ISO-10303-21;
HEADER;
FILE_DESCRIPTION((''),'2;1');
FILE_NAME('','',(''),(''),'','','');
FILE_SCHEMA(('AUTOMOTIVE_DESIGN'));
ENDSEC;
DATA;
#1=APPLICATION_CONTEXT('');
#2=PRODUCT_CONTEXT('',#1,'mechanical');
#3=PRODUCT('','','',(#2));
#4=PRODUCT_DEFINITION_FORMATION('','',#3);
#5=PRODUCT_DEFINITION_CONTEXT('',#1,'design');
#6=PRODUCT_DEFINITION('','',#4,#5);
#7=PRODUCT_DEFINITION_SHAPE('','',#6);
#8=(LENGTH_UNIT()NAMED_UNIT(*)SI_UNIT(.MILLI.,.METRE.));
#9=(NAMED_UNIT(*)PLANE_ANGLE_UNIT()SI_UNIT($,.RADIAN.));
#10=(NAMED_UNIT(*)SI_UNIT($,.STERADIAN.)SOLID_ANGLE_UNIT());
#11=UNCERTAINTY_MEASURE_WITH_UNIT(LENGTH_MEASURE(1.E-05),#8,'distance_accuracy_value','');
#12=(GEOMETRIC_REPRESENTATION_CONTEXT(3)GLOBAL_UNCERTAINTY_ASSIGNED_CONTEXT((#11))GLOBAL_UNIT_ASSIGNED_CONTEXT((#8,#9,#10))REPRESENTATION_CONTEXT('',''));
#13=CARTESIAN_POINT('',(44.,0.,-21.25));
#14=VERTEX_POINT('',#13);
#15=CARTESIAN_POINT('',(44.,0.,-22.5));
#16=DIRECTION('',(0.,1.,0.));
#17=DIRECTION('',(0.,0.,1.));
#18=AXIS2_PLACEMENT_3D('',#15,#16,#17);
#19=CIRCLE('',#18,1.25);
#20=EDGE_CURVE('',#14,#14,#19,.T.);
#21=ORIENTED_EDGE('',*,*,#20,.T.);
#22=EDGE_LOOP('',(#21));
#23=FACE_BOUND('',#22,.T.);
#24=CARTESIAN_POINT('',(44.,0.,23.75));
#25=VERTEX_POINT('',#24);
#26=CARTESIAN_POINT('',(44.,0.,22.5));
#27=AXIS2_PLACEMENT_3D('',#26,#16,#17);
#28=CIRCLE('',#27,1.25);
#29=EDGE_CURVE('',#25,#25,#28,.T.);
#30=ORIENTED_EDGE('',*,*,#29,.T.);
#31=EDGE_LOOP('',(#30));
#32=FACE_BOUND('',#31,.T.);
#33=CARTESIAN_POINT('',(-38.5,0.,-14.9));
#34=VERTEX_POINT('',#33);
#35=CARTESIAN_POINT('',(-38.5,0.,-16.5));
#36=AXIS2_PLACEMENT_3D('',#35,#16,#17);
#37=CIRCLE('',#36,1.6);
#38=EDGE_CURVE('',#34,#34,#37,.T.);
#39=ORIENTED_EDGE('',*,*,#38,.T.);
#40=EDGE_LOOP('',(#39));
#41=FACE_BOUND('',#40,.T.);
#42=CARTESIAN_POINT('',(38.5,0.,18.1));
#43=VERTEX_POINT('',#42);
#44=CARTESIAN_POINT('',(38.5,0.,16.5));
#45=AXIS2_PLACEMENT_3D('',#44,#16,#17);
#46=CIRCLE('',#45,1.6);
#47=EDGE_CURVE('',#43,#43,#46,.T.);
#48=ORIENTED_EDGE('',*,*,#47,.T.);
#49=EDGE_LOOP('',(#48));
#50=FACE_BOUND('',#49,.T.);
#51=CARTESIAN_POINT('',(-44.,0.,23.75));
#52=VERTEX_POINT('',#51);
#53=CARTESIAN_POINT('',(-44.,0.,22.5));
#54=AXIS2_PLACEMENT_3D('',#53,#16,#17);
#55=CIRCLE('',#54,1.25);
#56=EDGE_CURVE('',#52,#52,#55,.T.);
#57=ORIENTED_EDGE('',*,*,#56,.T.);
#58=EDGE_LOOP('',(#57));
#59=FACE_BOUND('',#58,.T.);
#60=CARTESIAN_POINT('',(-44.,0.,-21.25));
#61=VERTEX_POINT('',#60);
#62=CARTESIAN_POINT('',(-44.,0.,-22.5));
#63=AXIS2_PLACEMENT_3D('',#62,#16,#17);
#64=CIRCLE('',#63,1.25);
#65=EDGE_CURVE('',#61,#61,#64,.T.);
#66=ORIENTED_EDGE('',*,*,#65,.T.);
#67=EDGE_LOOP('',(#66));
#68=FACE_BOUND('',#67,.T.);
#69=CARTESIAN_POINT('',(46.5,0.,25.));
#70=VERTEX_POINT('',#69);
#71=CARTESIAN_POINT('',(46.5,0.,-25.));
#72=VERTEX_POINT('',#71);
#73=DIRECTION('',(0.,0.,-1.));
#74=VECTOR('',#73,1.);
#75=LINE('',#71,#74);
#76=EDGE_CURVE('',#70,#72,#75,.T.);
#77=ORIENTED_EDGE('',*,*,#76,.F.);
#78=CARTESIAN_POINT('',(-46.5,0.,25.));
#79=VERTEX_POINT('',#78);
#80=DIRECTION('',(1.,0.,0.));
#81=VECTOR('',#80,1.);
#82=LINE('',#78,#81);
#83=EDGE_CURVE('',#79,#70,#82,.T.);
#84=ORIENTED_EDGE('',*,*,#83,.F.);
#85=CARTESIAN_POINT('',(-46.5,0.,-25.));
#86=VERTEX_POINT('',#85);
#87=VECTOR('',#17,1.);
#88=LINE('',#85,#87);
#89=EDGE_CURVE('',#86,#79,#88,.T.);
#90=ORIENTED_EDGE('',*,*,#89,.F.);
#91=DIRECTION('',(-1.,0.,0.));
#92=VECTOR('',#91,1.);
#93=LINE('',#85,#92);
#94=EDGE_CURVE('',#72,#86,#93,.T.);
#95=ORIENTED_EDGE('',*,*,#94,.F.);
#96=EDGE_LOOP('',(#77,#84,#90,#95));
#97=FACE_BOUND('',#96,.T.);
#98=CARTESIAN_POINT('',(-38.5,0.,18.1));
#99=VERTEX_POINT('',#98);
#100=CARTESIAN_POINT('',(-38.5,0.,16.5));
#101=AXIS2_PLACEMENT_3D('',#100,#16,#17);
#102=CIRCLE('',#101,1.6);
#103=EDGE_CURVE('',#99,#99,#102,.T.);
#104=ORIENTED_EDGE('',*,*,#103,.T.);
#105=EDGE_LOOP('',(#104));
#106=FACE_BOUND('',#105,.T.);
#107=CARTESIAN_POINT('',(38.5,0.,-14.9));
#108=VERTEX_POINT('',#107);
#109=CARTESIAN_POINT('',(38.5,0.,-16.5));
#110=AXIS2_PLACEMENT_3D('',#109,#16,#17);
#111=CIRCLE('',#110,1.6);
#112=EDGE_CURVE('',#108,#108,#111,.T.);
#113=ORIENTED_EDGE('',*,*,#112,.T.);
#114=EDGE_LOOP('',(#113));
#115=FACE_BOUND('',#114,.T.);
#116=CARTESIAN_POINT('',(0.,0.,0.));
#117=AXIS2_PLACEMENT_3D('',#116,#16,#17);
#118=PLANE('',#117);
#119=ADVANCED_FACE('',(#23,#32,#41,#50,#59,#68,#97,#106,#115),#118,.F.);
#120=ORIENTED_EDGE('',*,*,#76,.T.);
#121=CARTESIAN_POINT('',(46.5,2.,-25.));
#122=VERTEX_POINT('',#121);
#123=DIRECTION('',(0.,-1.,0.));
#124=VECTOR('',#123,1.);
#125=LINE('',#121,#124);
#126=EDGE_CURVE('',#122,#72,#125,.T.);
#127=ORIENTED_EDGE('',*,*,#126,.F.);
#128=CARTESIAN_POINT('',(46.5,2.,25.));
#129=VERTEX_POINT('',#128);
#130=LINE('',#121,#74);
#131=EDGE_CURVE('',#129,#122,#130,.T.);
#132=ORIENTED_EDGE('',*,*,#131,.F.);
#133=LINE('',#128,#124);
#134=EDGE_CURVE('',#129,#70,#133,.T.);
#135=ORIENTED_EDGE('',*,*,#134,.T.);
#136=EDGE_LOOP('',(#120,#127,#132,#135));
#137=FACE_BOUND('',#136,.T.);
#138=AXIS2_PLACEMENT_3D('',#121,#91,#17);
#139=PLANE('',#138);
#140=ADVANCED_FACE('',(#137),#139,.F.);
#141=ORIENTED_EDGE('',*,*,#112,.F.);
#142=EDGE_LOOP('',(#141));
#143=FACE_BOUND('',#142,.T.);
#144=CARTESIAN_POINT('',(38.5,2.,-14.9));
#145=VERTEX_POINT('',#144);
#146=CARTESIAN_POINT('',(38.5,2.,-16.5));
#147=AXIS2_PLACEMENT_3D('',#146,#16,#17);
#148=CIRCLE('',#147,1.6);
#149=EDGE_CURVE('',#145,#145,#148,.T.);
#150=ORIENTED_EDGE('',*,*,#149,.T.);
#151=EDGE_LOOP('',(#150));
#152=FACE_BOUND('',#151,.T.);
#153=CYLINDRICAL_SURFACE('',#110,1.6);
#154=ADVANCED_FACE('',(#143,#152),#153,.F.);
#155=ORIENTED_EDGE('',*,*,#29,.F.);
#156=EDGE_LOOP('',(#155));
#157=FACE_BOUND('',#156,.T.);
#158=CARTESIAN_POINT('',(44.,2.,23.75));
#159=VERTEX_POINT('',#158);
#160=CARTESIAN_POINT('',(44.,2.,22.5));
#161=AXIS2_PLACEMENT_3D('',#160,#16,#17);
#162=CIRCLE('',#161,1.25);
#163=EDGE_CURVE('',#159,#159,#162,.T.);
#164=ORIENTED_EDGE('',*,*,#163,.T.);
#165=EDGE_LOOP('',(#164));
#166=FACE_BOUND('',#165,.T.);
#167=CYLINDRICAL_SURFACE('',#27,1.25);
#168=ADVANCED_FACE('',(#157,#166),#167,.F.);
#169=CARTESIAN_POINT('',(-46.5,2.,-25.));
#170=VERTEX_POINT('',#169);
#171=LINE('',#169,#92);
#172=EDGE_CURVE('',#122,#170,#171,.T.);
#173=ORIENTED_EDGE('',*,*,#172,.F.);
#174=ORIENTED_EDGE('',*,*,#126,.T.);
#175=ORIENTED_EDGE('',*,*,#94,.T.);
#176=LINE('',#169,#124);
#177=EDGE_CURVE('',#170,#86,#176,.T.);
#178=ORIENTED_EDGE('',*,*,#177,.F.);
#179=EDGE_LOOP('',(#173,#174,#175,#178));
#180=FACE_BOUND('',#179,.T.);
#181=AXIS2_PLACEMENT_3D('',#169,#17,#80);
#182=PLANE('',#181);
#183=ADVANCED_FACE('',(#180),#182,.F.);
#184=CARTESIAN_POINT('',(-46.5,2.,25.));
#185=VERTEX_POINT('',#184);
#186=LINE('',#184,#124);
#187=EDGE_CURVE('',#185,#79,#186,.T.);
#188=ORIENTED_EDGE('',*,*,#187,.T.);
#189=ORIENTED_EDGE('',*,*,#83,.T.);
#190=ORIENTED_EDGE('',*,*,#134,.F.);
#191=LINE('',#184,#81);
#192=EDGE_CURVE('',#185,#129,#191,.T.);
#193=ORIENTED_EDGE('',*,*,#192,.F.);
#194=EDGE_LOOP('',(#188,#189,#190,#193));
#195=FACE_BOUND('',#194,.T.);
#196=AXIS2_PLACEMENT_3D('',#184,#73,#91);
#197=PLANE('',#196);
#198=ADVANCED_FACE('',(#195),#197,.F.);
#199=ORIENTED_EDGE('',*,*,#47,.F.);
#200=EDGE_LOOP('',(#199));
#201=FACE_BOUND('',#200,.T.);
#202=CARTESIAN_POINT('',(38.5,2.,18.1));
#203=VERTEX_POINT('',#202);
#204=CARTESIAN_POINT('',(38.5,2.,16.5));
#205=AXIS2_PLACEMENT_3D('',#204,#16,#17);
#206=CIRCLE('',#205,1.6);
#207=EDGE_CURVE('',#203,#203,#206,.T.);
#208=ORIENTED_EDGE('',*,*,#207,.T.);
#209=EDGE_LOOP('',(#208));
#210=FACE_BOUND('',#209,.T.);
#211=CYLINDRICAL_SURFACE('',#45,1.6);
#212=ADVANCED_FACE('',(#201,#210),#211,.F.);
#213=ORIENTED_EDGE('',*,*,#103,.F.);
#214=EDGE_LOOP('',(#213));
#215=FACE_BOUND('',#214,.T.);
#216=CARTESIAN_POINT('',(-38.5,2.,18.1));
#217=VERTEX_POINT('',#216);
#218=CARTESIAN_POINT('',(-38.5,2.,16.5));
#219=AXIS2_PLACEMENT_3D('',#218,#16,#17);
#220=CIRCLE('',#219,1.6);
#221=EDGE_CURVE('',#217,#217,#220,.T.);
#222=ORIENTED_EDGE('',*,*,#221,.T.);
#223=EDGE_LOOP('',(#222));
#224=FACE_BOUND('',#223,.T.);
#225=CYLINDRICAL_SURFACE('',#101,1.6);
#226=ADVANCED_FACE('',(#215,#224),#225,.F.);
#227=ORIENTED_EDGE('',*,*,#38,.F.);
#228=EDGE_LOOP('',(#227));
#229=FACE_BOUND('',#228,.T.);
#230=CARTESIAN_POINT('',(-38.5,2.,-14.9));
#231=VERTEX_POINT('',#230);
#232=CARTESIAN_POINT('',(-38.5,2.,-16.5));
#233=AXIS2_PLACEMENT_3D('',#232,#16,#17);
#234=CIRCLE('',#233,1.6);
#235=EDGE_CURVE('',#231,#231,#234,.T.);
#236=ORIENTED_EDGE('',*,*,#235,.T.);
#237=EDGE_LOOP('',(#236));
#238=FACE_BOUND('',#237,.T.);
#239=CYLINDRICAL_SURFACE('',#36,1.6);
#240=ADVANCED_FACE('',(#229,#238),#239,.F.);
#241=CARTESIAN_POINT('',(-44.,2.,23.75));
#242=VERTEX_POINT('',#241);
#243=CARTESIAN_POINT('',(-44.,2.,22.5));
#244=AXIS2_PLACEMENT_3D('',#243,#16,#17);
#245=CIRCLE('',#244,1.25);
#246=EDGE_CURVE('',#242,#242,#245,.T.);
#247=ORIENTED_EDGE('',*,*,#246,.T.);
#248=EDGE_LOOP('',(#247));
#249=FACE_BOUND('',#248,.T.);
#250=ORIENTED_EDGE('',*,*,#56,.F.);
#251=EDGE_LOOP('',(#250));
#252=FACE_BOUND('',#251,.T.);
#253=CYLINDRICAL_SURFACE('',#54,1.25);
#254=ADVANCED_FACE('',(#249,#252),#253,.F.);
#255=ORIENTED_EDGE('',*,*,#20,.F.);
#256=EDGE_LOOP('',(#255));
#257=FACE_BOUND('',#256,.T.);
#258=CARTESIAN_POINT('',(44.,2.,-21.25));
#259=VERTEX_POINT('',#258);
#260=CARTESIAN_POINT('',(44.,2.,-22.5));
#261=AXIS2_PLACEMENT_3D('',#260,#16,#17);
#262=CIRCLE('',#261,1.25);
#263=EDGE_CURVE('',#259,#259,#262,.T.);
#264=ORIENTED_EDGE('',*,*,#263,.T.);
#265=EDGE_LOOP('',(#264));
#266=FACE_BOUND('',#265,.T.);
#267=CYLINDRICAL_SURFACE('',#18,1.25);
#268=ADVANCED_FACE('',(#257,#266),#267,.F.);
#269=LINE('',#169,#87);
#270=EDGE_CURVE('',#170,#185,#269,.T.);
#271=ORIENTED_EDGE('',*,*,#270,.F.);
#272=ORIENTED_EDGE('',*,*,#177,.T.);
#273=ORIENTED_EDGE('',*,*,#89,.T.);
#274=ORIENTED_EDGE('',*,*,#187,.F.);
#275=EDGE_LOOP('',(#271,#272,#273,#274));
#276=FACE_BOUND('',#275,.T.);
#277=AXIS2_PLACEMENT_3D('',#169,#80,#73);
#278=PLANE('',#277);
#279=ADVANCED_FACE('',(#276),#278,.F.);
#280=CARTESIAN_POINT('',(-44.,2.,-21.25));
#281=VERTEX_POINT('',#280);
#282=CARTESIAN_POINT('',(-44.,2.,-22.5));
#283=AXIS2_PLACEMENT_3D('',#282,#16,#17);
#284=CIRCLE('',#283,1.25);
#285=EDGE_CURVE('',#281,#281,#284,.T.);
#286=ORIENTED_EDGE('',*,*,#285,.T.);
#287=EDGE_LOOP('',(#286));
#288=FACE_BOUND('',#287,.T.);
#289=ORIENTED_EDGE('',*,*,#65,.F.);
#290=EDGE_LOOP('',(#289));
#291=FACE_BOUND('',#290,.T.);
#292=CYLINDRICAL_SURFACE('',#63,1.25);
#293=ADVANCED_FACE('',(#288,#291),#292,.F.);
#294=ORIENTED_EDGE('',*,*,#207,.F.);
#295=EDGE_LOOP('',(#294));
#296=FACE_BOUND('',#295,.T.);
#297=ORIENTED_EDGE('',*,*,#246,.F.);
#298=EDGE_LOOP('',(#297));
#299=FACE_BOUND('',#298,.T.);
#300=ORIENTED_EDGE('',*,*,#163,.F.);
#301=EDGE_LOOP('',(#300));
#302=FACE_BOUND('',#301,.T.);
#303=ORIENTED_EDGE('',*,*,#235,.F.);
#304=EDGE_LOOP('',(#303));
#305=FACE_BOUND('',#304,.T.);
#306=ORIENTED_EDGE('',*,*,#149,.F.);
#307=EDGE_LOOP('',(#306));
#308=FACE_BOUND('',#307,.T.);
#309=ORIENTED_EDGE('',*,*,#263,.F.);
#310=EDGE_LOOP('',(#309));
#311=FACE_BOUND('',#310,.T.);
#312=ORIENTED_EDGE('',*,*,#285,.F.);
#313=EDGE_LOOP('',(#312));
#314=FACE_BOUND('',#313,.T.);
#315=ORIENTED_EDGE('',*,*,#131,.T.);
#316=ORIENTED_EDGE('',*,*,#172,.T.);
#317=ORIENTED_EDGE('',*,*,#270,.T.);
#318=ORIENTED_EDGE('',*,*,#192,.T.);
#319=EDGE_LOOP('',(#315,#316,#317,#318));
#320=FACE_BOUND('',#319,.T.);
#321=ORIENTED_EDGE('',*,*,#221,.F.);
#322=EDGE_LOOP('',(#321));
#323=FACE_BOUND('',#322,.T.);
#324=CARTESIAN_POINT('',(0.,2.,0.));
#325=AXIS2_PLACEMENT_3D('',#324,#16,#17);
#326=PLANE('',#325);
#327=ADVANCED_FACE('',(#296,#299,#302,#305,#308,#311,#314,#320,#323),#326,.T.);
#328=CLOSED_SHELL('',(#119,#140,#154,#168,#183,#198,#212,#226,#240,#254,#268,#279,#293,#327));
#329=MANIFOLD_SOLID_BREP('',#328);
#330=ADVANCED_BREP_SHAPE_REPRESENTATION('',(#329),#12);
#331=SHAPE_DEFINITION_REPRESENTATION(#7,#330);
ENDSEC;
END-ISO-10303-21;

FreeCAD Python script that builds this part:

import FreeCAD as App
import Part
import Sketcher
from FreeCAD import Vector


def add_polygon(sketch, points):
    """Adds a closed chain of lines whose ends are joined by coincident constraints."""
    first, n = sketch.GeometryCount, len(points)
    for a, b in zip(points, points[1:] + points[:1]):
        sketch.addGeometry(Part.LineSegment(App.Vector(*a, 0), App.Vector(*b, 0)), False)
    for i in range(n):
        sketch.addConstraint(Sketcher.Constraint("Coincident", first + i, 2, first + (i + 1) % n, 1))

doc = App.newDocument("Part")
body = doc.addObject("PartDesign::Body", "Body")

# Sketch on XZ plane
sketch1 = doc.addObject("Sketcher::SketchObject", "Sketch")
body.addObject(sketch1)
sketch1.AttachmentSupport = (doc.XZ_Plane, [""])
sketch1.MapMode = "FlatFace"
add_polygon(sketch1, [(-46, -25), (-46, 25), (46, 25), (46, -25)])  # lines 0-3
sketch1.addConstraint(Sketcher.Constraint("Vertical", 0))
sketch1.addConstraint(Sketcher.Constraint("Horizontal", 1))
sketch1.addConstraint(Sketcher.Constraint("Vertical", 2))
sketch1.addConstraint(Sketcher.Constraint("Horizontal", 3))
sketch1.addConstraint(Sketcher.Constraint("Symmetric", 0, 2, 2, 2, -1, 1))
sketch1.addConstraint(Sketcher.Constraint("DistanceX", 1, 1, 1, 2, 93.0))
sketch1.addConstraint(Sketcher.Constraint("DistanceY", 0, 1, 0, 2, 50.0))
pad1 = doc.addObject("PartDesign::Pad", "Pad")
body.addObject(pad1)
pad1.Profile = sketch1
pad1.Length = 2
pad1.Reversed = True

# Sketch on XZ plane
sketch2 = doc.addObject("Sketcher::SketchObject", "Sketch001")
body.addObject(sketch2)
sketch2.AttachmentSupport = (doc.XZ_Plane, [""])
sketch2.MapMode = "FlatFace"
sketch2.AttachmentOffset = App.Placement(Vector(0, 0, -2), App.Rotation())
sketch2.addGeometry(Part.Circle(Vector(-44, -22.5, 0), Vector(0, 0, 1), 1.2), False)
sketch2.addGeometry(Part.Circle(Vector(44, -22.5, 0), Vector(0, 0, 1), 1.2), False)
sketch2.addGeometry(Part.Circle(Vector(44, 22.5, 0), Vector(0, 0, 1), 1.2), False)
sketch2.addGeometry(Part.Circle(Vector(-44, 22.5, 0), Vector(0, 0, 1), 1.2), False)
sketch2.addConstraint(Sketcher.Constraint("Equal", 0, 1))
sketch2.addConstraint(Sketcher.Constraint("Equal", 1, 2))
sketch2.addConstraint(Sketcher.Constraint("Equal", 2, 3))
sketch2.addConstraint(Sketcher.Constraint("Symmetric", 0, 3, 2, 3, -1, 1))
sketch2.addConstraint(Sketcher.Constraint("Symmetric", 1, 3, 3, 3, -1, 1))
sketch2.addConstraint(Sketcher.Constraint("Symmetric", 0, 3, 1, 3, -2))
sketch2.addConstraint(Sketcher.Constraint("Diameter", 0, 2.5))
sketch2.addConstraint(Sketcher.Constraint("DistanceX", 0, 3, -1, 1, 44.0))
sketch2.addConstraint(Sketcher.Constraint("DistanceY", 1, 3, 2, 3, 45.0))
pocket1 = doc.addObject("PartDesign::Pocket", "Pocket")
body.addObject(pocket1)
pocket1.Profile = sketch2
pocket1.Length = 2
pocket1.Reversed = True

# Sketch on XZ plane
sketch3 = doc.addObject("Sketcher::SketchObject", "Sketch002")
body.addObject(sketch3)
sketch3.AttachmentSupport = (doc.XZ_Plane, [""])
sketch3.MapMode = "FlatFace"
sketch3.AttachmentOffset = App.Placement(Vector(0, 0, -2), App.Rotation())
sketch3.addGeometry(Part.Circle(Vector(-38.5, -16.5, 0), Vector(0, 0, 1), 1.6), False)
sketch3.addGeometry(Part.Circle(Vector(-38.5, 16.5, 0), Vector(0, 0, 1), 1.6), False)
sketch3.addGeometry(Part.Circle(Vector(38.5, -16.5, 0), Vector(0, 0, 1), 1.6), False)
sketch3.addGeometry(Part.Circle(Vector(38.5, 16.5, 0), Vector(0, 0, 1), 1.6), False)
sketch3.addConstraint(Sketcher.Constraint("Equal", 0, 1))
sketch3.addConstraint(Sketcher.Constraint("Equal", 1, 2))
sketch3.addConstraint(Sketcher.Constraint("Equal", 2, 3))
sketch3.addConstraint(Sketcher.Constraint("Symmetric", 1, 3, 2, 3, -1, 1))
sketch3.addConstraint(Sketcher.Constraint("Symmetric", 0, 3, 3, 3, -1, 1))
sketch3.addConstraint(Sketcher.Constraint("Symmetric", 0, 3, 2, 3, -2))
sketch3.addConstraint(Sketcher.Constraint("Diameter", 0, 3.2))
sketch3.addConstraint(Sketcher.Constraint("DistanceY", 0, 3, 1, 3, 33.0))
sketch3.addConstraint(Sketcher.Constraint("DistanceX", 0, 3, 2, 3, 77.0))
pocket2 = doc.addObject("PartDesign::Pocket", "Pocket001")
body.addObject(pocket2)
pocket2.Profile = sketch3
pocket2.Length = 2
pocket2.Reversed = True

doc.recompute()
